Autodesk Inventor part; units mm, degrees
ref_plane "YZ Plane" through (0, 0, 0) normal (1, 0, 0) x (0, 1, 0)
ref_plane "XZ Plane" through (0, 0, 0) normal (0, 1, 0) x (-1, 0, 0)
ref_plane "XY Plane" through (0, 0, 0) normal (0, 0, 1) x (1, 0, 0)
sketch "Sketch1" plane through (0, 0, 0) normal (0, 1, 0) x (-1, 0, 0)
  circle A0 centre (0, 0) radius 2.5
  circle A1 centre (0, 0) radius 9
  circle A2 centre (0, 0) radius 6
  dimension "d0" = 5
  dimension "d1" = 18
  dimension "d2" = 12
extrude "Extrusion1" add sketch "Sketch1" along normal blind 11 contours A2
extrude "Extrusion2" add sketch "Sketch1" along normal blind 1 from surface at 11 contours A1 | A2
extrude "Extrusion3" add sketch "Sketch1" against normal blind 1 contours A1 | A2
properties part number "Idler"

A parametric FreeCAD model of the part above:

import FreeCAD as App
import Part
import Sketcher
from FreeCAD import Vector

doc = App.newDocument("Part")
body = doc.addObject("PartDesign::Body", "Body")

sketch1 = doc.addObject("Sketcher::SketchObject", "Sketch")
body.addObject(sketch1)
sketch1.AttachmentSupport = (doc.XZ_Plane, [""])
sketch1.MapMode = "FlatFace"
sketch1.addGeometry(Part.Circle(Vector(0, 0, 0), Vector(0, 0, 1), 6), False)
sketch1.addGeometry(Part.Circle(Vector(0, 0, 0), Vector(0, 0, 1), 2.5), False)
sketch1.addConstraint(Sketcher.Constraint("Coincident", 0, 3, -1, 1))
sketch1.addConstraint(Sketcher.Constraint("Coincident", 1, 3, -1, 1))
sketch1.addConstraint(Sketcher.Constraint("Diameter", 0, 12.0))
sketch1.addConstraint(Sketcher.Constraint("Diameter", 1, 5.0))
pad1 = doc.addObject("PartDesign::Pad", "Pad")
body.addObject(pad1)
pad1.Profile = sketch1
pad1.Length = 11
pad1.Reversed = True

sketch2 = doc.addObject("Sketcher::SketchObject", "Sketch001")
body.addObject(sketch2)
sketch2.AttachmentSupport = (doc.XZ_Plane, [""])
sketch2.MapMode = "FlatFace"
sketch2.AttachmentOffset = App.Placement(Vector(0, 0, -11), App.Rotation())
sketch2.addGeometry(Part.Circle(Vector(0, 0, 0), Vector(0, 0, 1), 9), False)
sketch2.addGeometry(Part.Circle(Vector(0, 0, 0), Vector(0, 0, 1), 2.5), False)
sketch2.addConstraint(Sketcher.Constraint("Coincident", 0, 3, -1, 1))
sketch2.addConstraint(Sketcher.Constraint("Coincident", 1, 3, -1, 1))
sketch2.addConstraint(Sketcher.Constraint("Diameter", 0, 18.0))
sketch2.addConstraint(Sketcher.Constraint("Diameter", 1, 5.0))
pad2 = doc.addObject("PartDesign::Pad", "Pad001")
body.addObject(pad2)
pad2.Profile = sketch2
pad2.Length = 1
pad2.Reversed = True

sketch3 = doc.addObject("Sketcher::SketchObject", "Sketch002")
body.addObject(sketch3)
sketch3.AttachmentSupport = (doc.XZ_Plane, [""])
sketch3.MapMode = "FlatFace"
sketch3.addGeometry(Part.Circle(Vector(0, 0, 0), Vector(0, 0, 1), 9), False)
sketch3.addGeometry(Part.Circle(Vector(0, 0, 0), Vector(0, 0, 1), 2.5), False)
sketch3.addConstraint(Sketcher.Constraint("Coincident", 0, 3, -1, 1))
sketch3.addConstraint(Sketcher.Constraint("Coincident", 1, 3, -1, 1))
sketch3.addConstraint(Sketcher.Constraint("Diameter", 0, 18.0))
sketch3.addConstraint(Sketcher.Constraint("Diameter", 1, 5.0))
pad3 = doc.addObject("PartDesign::Pad", "Pad002")
body.addObject(pad3)
pad3.Profile = sketch3
pad3.Length = 1

doc.recompute()
